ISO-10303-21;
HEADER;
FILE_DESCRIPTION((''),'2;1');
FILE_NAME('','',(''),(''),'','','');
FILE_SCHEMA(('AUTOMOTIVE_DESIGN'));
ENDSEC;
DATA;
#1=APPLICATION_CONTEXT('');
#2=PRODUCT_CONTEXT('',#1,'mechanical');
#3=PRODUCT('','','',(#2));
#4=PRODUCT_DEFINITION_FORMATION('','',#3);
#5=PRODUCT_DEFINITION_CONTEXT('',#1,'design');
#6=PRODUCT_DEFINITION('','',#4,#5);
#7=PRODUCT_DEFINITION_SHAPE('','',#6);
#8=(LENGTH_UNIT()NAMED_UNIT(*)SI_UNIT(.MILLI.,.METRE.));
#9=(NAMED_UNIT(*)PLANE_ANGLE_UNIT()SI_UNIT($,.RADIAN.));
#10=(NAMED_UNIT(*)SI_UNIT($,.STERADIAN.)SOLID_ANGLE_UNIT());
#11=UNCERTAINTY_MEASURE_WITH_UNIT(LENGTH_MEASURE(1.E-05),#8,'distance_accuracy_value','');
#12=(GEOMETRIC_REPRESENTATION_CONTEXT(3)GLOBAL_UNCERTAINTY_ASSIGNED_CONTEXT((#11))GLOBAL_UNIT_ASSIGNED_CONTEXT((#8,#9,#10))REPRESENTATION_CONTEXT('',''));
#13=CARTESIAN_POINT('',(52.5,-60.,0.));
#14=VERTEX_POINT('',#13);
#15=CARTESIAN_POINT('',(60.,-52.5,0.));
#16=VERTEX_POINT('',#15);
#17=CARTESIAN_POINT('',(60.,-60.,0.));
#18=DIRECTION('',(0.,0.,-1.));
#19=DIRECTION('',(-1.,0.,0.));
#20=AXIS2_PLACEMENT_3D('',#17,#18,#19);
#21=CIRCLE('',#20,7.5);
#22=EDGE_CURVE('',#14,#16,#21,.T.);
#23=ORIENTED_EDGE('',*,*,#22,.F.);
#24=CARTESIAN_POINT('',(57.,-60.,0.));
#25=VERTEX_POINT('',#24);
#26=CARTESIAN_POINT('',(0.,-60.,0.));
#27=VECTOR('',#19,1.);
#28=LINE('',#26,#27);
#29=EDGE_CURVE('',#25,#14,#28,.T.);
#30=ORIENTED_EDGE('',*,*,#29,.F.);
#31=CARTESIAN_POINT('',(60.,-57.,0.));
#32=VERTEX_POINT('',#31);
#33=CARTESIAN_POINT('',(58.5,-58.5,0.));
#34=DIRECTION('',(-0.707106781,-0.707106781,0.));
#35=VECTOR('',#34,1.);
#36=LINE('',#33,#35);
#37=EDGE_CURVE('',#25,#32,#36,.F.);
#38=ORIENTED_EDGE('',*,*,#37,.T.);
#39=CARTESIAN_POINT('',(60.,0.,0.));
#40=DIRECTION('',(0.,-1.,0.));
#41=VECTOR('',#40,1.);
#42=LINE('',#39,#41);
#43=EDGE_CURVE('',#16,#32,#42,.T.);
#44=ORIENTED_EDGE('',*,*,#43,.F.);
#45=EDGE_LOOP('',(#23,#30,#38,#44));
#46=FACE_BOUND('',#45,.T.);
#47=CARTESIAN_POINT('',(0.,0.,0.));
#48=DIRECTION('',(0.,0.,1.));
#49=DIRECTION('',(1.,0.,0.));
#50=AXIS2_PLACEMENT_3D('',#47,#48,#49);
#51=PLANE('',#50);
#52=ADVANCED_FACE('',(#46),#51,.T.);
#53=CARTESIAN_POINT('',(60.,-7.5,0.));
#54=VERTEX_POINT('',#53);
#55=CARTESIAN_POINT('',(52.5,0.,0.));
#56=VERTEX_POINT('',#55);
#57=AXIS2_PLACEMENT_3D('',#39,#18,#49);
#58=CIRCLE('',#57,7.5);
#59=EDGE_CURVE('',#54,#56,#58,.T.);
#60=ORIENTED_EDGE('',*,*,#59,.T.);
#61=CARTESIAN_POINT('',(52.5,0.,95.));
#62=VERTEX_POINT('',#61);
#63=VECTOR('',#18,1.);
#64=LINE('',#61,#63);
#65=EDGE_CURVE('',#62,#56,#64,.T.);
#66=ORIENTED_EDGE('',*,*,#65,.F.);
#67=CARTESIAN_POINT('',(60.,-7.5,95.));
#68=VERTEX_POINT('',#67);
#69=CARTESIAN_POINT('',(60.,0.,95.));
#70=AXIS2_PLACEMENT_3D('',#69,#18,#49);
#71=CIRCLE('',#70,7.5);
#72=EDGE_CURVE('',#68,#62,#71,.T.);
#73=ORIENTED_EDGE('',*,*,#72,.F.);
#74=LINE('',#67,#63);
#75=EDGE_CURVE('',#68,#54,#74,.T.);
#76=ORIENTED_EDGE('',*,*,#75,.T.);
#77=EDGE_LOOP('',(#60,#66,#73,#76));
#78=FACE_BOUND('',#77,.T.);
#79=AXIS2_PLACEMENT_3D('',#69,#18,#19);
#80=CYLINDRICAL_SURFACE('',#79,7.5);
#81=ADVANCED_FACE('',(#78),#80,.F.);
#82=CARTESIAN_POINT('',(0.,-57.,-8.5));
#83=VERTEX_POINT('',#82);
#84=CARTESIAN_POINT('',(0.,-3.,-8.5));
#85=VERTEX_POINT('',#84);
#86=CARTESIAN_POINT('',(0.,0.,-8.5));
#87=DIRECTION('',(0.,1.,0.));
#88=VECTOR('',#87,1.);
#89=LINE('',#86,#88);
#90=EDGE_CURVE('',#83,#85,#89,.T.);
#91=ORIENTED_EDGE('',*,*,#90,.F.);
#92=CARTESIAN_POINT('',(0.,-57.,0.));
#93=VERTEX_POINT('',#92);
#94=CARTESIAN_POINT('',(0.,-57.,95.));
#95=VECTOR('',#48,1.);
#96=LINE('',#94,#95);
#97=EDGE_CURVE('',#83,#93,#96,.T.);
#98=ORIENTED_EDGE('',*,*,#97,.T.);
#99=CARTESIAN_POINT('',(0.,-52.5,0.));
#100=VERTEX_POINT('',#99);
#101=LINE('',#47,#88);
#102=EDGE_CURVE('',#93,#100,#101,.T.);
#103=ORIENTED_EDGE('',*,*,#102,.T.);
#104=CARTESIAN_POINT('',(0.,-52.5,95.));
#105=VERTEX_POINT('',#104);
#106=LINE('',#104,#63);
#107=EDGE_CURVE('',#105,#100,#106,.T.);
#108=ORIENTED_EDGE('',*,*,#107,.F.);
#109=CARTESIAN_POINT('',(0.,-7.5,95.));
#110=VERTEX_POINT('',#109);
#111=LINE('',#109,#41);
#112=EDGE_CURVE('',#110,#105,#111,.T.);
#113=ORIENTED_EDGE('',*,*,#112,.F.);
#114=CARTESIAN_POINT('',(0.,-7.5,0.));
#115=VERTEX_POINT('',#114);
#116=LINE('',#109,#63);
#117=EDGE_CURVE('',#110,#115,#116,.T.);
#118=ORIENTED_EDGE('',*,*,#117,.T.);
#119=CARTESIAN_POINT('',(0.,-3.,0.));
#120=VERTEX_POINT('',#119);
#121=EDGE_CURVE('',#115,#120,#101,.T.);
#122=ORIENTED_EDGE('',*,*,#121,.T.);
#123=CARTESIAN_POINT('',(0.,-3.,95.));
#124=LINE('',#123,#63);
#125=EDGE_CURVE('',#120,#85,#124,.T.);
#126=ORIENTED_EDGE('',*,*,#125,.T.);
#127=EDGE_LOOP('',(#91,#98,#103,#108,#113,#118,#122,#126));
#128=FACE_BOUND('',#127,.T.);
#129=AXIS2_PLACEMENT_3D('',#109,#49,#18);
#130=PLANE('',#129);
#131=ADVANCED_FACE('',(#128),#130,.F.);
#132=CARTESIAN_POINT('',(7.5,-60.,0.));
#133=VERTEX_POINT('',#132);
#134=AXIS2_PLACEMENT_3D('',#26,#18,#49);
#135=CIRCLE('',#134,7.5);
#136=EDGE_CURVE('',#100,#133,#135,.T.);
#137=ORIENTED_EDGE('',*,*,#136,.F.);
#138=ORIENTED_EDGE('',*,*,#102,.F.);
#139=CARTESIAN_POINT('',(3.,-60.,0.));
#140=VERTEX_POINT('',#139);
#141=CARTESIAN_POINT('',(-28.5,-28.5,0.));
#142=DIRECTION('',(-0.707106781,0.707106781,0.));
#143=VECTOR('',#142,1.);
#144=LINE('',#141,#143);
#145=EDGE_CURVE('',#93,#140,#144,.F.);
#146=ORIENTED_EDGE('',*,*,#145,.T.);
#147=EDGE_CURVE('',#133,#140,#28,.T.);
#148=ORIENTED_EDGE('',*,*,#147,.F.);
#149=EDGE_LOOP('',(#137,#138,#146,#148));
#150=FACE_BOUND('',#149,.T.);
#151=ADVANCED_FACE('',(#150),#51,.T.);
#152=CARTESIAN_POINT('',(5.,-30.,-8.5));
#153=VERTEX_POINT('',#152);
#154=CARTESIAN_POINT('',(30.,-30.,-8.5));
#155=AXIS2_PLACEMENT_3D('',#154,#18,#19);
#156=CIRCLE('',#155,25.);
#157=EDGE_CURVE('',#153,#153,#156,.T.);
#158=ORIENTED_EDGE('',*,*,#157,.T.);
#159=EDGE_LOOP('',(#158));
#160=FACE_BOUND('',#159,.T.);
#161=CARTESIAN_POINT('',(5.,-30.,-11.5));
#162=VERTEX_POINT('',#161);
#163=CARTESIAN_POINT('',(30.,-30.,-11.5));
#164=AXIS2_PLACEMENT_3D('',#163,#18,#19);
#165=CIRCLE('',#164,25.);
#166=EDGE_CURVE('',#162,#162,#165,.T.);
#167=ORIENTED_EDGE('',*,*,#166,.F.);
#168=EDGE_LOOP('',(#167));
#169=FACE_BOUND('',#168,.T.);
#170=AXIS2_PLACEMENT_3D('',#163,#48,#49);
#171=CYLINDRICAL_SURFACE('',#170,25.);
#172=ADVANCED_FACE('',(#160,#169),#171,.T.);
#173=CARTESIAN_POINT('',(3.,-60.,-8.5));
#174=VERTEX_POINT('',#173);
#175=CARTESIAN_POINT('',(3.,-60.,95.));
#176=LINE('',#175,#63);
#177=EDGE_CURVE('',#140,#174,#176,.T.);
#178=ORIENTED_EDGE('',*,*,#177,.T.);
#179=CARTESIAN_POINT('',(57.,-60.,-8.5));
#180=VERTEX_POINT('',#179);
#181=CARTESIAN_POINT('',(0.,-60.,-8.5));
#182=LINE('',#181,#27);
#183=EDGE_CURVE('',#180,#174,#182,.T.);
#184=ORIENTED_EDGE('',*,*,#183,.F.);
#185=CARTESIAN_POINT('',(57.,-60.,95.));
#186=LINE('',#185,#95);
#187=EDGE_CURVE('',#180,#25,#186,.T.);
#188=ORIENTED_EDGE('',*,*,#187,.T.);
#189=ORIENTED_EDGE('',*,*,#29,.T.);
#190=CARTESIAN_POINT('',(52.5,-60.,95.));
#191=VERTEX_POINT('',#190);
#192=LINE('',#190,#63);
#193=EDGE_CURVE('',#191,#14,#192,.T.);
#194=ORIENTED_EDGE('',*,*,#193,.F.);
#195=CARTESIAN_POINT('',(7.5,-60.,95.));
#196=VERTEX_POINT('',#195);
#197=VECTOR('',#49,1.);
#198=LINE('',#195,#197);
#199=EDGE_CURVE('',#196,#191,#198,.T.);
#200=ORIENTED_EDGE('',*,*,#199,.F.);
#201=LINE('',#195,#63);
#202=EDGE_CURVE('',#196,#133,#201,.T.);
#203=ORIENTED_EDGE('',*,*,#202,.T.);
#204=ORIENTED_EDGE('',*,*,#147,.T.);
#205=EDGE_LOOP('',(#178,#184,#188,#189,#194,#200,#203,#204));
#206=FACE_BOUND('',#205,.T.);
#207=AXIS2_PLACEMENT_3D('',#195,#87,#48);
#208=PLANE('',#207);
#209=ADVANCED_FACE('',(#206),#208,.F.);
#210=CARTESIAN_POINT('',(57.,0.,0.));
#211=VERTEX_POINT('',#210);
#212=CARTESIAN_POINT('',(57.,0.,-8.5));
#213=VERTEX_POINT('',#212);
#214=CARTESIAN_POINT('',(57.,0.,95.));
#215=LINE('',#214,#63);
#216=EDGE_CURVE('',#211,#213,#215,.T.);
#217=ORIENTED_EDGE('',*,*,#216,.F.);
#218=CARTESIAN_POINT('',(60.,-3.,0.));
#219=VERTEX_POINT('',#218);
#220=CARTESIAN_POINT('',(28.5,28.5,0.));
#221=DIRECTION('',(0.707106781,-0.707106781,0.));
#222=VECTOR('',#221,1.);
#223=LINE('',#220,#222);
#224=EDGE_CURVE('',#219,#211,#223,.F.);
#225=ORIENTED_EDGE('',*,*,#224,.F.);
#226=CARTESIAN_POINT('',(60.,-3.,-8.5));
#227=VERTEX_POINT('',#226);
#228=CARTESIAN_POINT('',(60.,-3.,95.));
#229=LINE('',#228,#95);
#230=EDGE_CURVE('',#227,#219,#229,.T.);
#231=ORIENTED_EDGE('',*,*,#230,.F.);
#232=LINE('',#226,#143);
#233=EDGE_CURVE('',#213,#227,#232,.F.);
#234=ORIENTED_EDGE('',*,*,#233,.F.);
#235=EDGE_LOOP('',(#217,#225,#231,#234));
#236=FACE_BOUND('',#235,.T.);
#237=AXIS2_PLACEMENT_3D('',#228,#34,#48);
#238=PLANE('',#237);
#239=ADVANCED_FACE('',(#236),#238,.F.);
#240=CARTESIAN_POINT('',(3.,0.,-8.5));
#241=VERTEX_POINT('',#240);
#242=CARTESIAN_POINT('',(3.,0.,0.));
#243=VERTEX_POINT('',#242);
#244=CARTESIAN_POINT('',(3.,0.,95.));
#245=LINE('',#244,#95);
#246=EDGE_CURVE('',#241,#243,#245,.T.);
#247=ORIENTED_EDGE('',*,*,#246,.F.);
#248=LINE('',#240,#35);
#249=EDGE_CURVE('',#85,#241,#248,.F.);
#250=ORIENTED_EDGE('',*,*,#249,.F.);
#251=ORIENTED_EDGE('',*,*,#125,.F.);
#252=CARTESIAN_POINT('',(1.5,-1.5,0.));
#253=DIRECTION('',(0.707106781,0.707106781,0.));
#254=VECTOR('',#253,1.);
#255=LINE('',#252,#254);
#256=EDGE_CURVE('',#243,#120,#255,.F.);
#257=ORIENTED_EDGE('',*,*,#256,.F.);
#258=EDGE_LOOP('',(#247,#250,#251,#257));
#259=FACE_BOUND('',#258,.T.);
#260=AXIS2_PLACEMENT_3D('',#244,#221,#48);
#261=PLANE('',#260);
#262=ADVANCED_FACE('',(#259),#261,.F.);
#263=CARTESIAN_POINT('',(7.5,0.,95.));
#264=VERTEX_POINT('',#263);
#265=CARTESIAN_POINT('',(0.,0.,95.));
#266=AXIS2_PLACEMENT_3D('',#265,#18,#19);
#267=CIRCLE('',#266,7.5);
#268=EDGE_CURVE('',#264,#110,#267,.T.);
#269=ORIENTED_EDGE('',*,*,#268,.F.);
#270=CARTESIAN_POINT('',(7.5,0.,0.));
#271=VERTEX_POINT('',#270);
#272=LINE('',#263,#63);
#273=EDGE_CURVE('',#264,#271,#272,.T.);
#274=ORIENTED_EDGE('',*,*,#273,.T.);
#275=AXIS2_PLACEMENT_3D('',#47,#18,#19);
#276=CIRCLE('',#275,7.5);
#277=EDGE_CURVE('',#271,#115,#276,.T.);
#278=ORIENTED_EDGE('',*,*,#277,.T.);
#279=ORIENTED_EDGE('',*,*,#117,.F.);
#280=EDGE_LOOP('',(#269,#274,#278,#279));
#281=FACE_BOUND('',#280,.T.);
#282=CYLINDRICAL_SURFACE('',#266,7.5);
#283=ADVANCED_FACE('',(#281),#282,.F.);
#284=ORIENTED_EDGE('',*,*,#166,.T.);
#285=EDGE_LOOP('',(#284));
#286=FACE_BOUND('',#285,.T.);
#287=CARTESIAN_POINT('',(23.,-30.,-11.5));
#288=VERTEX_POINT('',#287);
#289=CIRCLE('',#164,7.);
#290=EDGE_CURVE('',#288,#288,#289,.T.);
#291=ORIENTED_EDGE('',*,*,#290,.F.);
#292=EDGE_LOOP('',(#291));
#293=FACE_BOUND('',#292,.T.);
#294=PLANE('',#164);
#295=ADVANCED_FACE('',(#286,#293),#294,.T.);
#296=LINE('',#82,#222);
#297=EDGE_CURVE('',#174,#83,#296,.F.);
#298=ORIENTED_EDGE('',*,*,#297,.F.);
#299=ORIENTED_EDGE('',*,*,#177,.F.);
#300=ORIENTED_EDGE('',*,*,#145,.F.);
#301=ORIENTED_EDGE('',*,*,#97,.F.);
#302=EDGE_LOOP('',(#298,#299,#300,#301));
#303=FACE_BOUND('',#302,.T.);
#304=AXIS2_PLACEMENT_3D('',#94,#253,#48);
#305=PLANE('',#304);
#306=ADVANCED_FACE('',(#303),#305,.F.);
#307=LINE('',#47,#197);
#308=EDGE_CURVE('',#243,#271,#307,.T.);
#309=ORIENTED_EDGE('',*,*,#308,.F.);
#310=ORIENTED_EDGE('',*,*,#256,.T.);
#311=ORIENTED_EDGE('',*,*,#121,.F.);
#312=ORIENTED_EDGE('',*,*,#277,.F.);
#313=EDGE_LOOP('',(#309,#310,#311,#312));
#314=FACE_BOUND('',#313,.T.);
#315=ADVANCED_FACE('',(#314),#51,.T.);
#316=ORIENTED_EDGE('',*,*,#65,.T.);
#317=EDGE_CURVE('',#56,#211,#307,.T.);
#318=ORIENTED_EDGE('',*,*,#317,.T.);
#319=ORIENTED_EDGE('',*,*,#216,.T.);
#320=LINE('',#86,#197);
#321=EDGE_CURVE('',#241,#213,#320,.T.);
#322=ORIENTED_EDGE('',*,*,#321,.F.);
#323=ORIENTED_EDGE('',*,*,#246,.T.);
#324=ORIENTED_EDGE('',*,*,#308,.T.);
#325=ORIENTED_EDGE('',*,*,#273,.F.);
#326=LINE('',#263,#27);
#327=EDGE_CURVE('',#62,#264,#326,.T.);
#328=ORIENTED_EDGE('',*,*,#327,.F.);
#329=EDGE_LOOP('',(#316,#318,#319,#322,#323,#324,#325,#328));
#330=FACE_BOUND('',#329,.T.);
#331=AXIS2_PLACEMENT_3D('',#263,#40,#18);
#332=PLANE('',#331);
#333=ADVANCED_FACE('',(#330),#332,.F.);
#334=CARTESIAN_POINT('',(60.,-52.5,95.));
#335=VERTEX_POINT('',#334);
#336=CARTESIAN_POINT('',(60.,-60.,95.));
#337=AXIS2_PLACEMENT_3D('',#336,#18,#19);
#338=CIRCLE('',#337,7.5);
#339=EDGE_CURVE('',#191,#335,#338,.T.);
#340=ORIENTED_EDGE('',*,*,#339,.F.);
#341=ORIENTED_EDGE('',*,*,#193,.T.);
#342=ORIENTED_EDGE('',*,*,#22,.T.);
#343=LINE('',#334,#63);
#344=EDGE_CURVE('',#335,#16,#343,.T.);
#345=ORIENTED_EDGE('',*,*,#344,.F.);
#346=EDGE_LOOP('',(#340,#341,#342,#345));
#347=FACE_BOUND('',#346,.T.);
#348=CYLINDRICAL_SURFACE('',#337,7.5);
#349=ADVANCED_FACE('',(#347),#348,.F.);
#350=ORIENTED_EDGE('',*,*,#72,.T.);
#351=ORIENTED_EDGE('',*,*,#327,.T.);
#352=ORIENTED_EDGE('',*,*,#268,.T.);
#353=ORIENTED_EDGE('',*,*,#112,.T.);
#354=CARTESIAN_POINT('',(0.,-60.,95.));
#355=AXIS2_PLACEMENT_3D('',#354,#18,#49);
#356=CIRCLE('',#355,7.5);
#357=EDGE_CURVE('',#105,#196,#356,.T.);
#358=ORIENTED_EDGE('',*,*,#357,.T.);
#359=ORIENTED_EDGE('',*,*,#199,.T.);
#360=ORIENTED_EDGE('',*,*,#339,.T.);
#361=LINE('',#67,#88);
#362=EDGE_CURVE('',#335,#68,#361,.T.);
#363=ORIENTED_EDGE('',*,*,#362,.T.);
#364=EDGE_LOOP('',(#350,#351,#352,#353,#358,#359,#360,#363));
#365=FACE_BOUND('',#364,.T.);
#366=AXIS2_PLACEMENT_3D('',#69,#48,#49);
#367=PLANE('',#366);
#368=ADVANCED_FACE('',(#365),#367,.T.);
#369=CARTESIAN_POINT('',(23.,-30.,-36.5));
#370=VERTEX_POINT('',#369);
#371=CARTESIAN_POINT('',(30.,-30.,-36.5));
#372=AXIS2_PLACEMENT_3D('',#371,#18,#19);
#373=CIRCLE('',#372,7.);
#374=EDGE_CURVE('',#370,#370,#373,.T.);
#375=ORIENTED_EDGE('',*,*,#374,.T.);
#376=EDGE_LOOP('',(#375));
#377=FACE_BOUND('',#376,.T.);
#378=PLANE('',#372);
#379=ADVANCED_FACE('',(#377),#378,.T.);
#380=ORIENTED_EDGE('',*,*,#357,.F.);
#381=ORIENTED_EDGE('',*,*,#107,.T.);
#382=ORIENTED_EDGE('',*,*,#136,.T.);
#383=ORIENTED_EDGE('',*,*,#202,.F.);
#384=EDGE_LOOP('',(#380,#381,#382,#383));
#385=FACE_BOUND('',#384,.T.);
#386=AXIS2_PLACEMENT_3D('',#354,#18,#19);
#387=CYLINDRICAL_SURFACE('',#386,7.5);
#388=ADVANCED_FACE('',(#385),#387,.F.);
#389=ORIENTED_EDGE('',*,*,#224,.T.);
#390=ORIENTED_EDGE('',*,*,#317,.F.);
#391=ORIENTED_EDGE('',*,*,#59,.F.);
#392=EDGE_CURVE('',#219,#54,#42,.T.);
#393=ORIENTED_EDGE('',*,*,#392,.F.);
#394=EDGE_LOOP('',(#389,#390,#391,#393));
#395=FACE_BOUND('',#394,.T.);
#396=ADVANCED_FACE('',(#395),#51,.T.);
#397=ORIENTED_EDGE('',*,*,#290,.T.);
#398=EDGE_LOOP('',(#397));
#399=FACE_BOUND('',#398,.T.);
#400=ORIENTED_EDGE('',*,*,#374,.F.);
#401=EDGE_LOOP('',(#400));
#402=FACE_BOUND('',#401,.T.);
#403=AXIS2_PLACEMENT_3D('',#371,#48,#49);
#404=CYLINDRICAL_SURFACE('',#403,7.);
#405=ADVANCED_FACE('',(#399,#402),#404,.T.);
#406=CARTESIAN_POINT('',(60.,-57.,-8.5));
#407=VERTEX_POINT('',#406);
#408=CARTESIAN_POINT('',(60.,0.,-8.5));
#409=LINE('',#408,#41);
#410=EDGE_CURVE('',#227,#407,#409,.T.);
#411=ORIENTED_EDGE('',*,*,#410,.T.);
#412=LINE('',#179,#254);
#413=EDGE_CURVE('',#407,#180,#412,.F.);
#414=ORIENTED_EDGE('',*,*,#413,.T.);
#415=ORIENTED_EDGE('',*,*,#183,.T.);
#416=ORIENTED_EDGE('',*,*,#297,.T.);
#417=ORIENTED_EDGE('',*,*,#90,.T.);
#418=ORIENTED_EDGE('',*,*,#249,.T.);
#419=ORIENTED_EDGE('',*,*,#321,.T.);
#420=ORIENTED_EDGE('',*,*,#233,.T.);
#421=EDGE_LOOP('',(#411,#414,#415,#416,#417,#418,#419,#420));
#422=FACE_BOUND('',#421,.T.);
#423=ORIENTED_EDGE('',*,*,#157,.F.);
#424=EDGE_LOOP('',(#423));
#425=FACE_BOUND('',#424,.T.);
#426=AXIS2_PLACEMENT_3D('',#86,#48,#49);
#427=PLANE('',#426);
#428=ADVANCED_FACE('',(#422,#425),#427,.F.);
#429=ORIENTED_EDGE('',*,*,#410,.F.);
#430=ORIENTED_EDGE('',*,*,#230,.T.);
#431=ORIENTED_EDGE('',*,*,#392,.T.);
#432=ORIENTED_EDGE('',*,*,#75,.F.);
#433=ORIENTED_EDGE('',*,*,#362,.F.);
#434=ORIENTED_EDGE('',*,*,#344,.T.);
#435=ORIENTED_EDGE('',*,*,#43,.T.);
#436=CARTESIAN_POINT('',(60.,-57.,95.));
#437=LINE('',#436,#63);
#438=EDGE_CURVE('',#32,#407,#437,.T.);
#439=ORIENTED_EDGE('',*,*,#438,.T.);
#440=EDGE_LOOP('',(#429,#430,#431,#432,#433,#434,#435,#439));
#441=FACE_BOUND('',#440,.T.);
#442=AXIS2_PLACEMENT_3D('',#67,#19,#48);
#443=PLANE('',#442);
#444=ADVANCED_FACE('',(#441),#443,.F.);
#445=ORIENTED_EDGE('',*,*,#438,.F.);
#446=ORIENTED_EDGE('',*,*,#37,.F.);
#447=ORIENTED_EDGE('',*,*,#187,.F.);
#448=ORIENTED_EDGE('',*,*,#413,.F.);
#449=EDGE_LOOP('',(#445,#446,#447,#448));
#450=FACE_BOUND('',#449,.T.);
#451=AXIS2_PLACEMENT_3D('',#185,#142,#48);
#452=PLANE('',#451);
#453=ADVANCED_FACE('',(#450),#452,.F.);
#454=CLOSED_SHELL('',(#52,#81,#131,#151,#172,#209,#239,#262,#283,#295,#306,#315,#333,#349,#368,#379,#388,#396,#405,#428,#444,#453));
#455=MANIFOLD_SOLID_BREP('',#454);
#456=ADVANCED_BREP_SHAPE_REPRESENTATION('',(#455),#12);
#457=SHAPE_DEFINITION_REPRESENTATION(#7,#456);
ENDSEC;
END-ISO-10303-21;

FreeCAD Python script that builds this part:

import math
import FreeCAD as App
import Part
import Sketcher
Q = App.Units.Quantity


def edges_at(feature, points):
    """Names of the edges that pass closest to the given points."""
    edges = feature.Shape.Edges
    near = lambda p: min(range(len(edges)), key=lambda i: edges[i].distToShape(Part.Vertex(*p))[0])
    return sorted({f"Edge{near(p) + 1}" for p in points})


def add_polygon(sketch, points):
    """Adds a closed chain of lines whose ends are joined by coincident constraints."""
    first, n = sketch.GeometryCount, len(points)
    for a, b in zip(points, points[1:] + points[:1]):
        sketch.addGeometry(Part.LineSegment(App.Vector(*a, 0), App.Vector(*b, 0)), False)
    for i in range(n):
        sketch.addConstraint(Sketcher.Constraint("Coincident", first + i, 2, first + (i + 1) % n, 1))

doc = App.newDocument("Part")
body = doc.addObject("PartDesign::Body", "Body")

sketch1 = body.newObject("Sketcher::SketchObject", "Sketch")
sketch1.AttachmentSupport = (doc.getObject("XY_Plane"), [""])
sketch1.MapMode = "FlatFace"
sketch1.addGeometry([
    Part.LineSegment(App.Vector(52, 0, 0), App.Vector(8, 0, 0)),
    Part.ArcOfCircle(Part.Circle(App.Vector(0, 0, 0), App.Vector(0, 0, 1), 8), math.radians(-90), math.radians(0)),
    Part.LineSegment(App.Vector(0, -8, 0), App.Vector(0, -52, 0)),
    Part.ArcOfCircle(Part.Circle(App.Vector(0, -60, 0), App.Vector(0, 0, 1), 8), math.radians(0), math.radians(90)),
    Part.LineSegment(App.Vector(8, -60, 0), App.Vector(52, -60, 0)),
    Part.ArcOfCircle(Part.Circle(App.Vector(60, -60, 0), App.Vector(0, 0, 1), 8), math.radians(90), math.radians(180)),
    Part.LineSegment(App.Vector(60, -52, 0), App.Vector(60, -8, 0)),
    Part.ArcOfCircle(Part.Circle(App.Vector(60, 0, 0), App.Vector(0, 0, 1), 8), math.radians(180), math.radians(270)),
], False)
sketch1.addConstraint([
    Sketcher.Constraint("Coincident", 0, 2, 1, 2),
    Sketcher.Constraint("Coincident", 1, 1, 2, 1),
    Sketcher.Constraint("Coincident", 2, 2, 3, 2),
    Sketcher.Constraint("Coincident", 3, 1, 4, 1),
    Sketcher.Constraint("Coincident", 4, 2, 5, 2),
    Sketcher.Constraint("Coincident", 5, 1, 6, 1),
    Sketcher.Constraint("Coincident", 6, 2, 7, 2),
    Sketcher.Constraint("Coincident", 7, 1, 0, 1),
    Sketcher.Constraint("Horizontal", 0),
    Sketcher.Constraint("Vertical", 2),
    Sketcher.Constraint("Horizontal", 4),
    Sketcher.Constraint("Vertical", 6),
    Sketcher.Constraint("Coincident", 1, 3, -1, 1),
    Sketcher.Constraint("Equal", 1, 3),
    Sketcher.Constraint("Equal", 3, 5),
    Sketcher.Constraint("Equal", 5, 7),
    Sketcher.Constraint("PointOnObject", 3, 3, -2),
    Sketcher.Constraint("PointOnObject", 7, 3, -1),
    Sketcher.Constraint("PointOnObject", 0, 2, -1),
    Sketcher.Constraint("PointOnObject", 1, 1, -2),
    Sketcher.Constraint("Horizontal", 3, 3, 5, 3),
    Sketcher.Constraint("Horizontal", 5, 3, 3, 1),
    Sketcher.Constraint("Vertical", 5, 3, 7, 3),
    Sketcher.Constraint("Vertical", 7, 3, 5, 1),
    Sketcher.Constraint("Equal", 4, 2),
    Sketcher.Constraint("Radius", 1, Q("7.5 mm")),
    Sketcher.Constraint("DistanceX", 0, 2, 0, 1, Q("45 mm")),
])
pad1 = body.newObject("PartDesign::Pad", "Pad")
pad1.Profile = sketch1
pad1.Length = 95

sketch2 = body.newObject("Sketcher::SketchObject", "Sketch001")
sketch2.AttachmentSupport = (doc.getObject("XY_Plane"), [""])
sketch2.MapMode = "FlatFace"
add_polygon(sketch2, [(60, 0), (60, -60), (0, -60), (0, 0)])
sketch2.addConstraint([
    Sketcher.Constraint("Vertical", 0),
    Sketcher.Constraint("Horizontal", 1),
    Sketcher.Constraint("Vertical", 2),
    Sketcher.Constraint("Horizontal", 3),
    Sketcher.Constraint("Coincident", 2, 2, -1, 1),
    Sketcher.Constraint("Equal", 3, 0),
    Sketcher.Constraint("DistanceX", 1, 2, 1, 1, Q("60 mm")),
])
pad2 = body.newObject("PartDesign::Pad", "Pad001")
pad2.Profile = sketch2
pad2.Length = 8.5
pad2.Reversed = True

sketch3 = body.newObject("Sketcher::SketchObject", "Sketch002")
sketch3.AttachmentSupport = (doc.getObject("XY_Plane"), [""])
sketch3.MapMode = "FlatFace"
sketch3.AttachmentOffset = App.Placement(App.Vector(0, 0, -8.5), App.Rotation())
sketch3.addGeometry(Part.Circle(App.Vector(30, -30, 0), App.Vector(0, 0, 1), 25), False)
sketch3.addConstraint([
    Sketcher.Constraint("Diameter", 0, Q("50 mm")),
    Sketcher.Constraint("DistanceX", -1, 1, 0, 3, Q("30 mm")),
    Sketcher.Constraint("DistanceY", 0, 3, -1, 1, Q("30 mm")),
])
pad3 = body.newObject("PartDesign::Pad", "Pad002")
pad3.Profile = sketch3
pad3.Length = 3
pad3.Reversed = True

sketch4 = body.newObject("Sketcher::SketchObject", "Sketch003")
sketch4.AttachmentSupport = (doc.getObject("XY_Plane"), [""])
sketch4.MapMode = "FlatFace"
sketch4.AttachmentOffset = App.Placement(App.Vector(0, 0, -11.5), App.Rotation())
sketch4.addGeometry(Part.Circle(App.Vector(30, -30, 0), App.Vector(0, 0, 1), 7), False)
sketch4.addConstraint([
    Sketcher.Constraint("Diameter", 0, Q("14 mm")),
    Sketcher.Constraint("DistanceX", -1, 1, 0, 3, Q("30 mm")),
    Sketcher.Constraint("DistanceY", 0, 3, -1, 1, Q("30 mm")),
])
pad4 = body.newObject("PartDesign::Pad", "Pad003")
pad4.Profile = sketch4
pad4.Length = 25
pad4.Reversed = True
doc.recompute()

chamfer = body.newObject("PartDesign::Chamfer", "Chamfer")
chamfer.Base = (pad4, edges_at(pad4, [
    (0, -60, -4.25),
    (0, 0, -4.25),
    (60, 0, -4.25),
    (60, -60, -4.25),
]))
chamfer.Size = 3

doc.recompute()
